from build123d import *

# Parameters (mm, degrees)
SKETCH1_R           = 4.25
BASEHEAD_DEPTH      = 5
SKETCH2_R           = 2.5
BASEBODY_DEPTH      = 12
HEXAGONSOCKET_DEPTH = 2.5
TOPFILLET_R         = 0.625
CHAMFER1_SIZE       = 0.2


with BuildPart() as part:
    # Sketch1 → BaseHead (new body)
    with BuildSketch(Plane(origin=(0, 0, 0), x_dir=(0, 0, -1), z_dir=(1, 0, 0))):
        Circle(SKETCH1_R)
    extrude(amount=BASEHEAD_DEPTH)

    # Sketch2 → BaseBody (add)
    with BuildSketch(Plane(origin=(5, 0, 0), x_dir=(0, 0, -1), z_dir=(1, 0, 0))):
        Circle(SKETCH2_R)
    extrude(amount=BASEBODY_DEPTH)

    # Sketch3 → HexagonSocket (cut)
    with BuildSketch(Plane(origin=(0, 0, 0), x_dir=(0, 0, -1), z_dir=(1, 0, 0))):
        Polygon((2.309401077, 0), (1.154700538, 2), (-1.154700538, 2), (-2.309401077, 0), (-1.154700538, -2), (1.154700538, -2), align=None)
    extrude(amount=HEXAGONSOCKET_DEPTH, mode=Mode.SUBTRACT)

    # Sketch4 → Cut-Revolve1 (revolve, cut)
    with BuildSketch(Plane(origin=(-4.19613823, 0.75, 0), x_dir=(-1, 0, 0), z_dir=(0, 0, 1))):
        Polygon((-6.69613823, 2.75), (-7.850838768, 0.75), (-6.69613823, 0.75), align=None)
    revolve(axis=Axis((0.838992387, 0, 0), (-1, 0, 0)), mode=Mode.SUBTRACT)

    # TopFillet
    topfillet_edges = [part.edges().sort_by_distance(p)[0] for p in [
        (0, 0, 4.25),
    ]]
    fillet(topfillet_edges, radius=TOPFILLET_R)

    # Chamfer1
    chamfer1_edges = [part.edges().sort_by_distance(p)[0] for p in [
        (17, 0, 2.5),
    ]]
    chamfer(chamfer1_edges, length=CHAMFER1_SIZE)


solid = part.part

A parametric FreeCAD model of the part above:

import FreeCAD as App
import Part
import Sketcher
from FreeCAD import Vector
Q = App.Units.Quantity


def edges_at(feature, points):
    """Names of the edges that pass closest to the given points."""
    edges = feature.Shape.Edges
    near = lambda p: min(range(len(edges)), key=lambda i: edges[i].distToShape(Part.Vertex(*p))[0])
    return sorted({f"Edge{near(p) + 1}" for p in points})


def add_polygon(sketch, points):
    """Adds a closed chain of lines whose ends are joined by coincident constraints."""
    first, n = sketch.GeometryCount, len(points)
    for a, b in zip(points, points[1:] + points[:1]):
        sketch.addGeometry(Part.LineSegment(App.Vector(*a, 0), App.Vector(*b, 0)), False)
    for i in range(n):
        sketch.addConstraint(Sketcher.Constraint("Coincident", first + i, 2, first + (i + 1) % n, 1))

doc = App.newDocument("Part")
body = doc.addObject("PartDesign::Body", "Body")

# Sketch on YZ plane
sketch1 = body.newObject("Sketcher::SketchObject", "Sketch")
sketch1.AttachmentSupport = (doc.getObject("YZ_Plane"), [""])
sketch1.MapMode = "FlatFace"
sketch1.addGeometry(Part.Circle(Vector(0, 0, 0), Vector(0, 0, 1), 4.25), False)
sketch1.addConstraint([
    Sketcher.Constraint("Coincident", 0, 3, -1, 1),
    Sketcher.Constraint("Diameter", 0, Q("8.5 mm")),
])
pad1 = body.newObject("PartDesign::Pad", "Pad")
pad1.Profile = sketch1
pad1.Length = 5

# Sketch on YZ plane
sketch2 = body.newObject("Sketcher::SketchObject", "Sketch001")
sketch2.AttachmentSupport = (doc.getObject("YZ_Plane"), [""])
sketch2.MapMode = "FlatFace"
sketch2.AttachmentOffset = App.Placement(Vector(0, 0, 5), App.Rotation())
sketch2.addGeometry(Part.Circle(Vector(0, 0, 0), Vector(0, 0, 1), 2.5), False)
sketch2.addConstraint([
    Sketcher.Constraint("Coincident", 0, 3, -1, 1),
    Sketcher.Constraint("Diameter", 0, Q("5 mm")),
])
pad2 = body.newObject("PartDesign::Pad", "Pad001")
pad2.Profile = sketch2
pad2.Length = 12

# Sketch on YZ plane
sketch3 = body.newObject("Sketcher::SketchObject", "Sketch002")
sketch3.AttachmentSupport = (doc.getObject("YZ_Plane"), [""])
sketch3.MapMode = "FlatFace"
add_polygon(sketch3, [(0, -2.309401), (2, -1.154701), (2, 1.154701), (0, 2.309401), (-2, 1.154701), (-2, -1.154701)])  # lines 0-5
sketch3.addConstraint([
    Sketcher.Constraint("Vertical", 1),
    Sketcher.Constraint("Vertical", 4),
    Sketcher.Constraint("Symmetric", 0, 2, 3, 2, -1, 1),
    Sketcher.Constraint("Symmetric", 2, 2, 5, 2, -1, 1),
    Sketcher.Constraint("PointOnObject", 2, 2, -2),
    Sketcher.Constraint("Parallel", 2, 5),
    Sketcher.Constraint("Horizontal", 1, 2, 3, 2),
    Sketcher.Constraint("Angle", 0, Q("30 deg")),
    Sketcher.Constraint("DistanceX", -1, 1, 0, 2, Q("2 mm")),
    Sketcher.Constraint("DistanceY", 1, 1, 1, 2, Q("2.309401 mm")),
])
pocket1 = body.newObject("PartDesign::Pocket", "Pocket")
pocket1.Profile = sketch3
pocket1.Length = 2.5
pocket1.Reversed = True

# Sketch on XY plane
sketch4 = body.newObject("Sketcher::SketchObject", "Sketch003")
sketch4.AttachmentSupport = (doc.getObject("XY_Plane"), [""])
sketch4.MapMode = "FlatFace"
add_polygon(sketch4, [(2.5, -2), (3.654701, 0), (2.5, 0)])  # lines 0-2
sketch4.addConstraint([
    Sketcher.Constraint("Horizontal", 1),
    Sketcher.Constraint("Vertical", 2),
    Sketcher.Constraint("PointOnObject", 0, 2, -1),
    Sketcher.Constraint("DistanceY", 2, 2, 2, 1, Q("2 mm")),
    Sketcher.Constraint("Angle", 0, Q("60 deg")),
    Sketcher.Constraint("DistanceX", -1, 1, 1, 2, Q("2.5 mm")),
])
groove = body.newObject("PartDesign::Groove", "Groove")
groove.Profile = sketch4
groove.ReferenceAxis = (sketch4, ["H_Axis"])
groove.Angle = 360
doc.recompute()

fillet = body.newObject("PartDesign::Fillet", "Fillet")
fillet.Base = (groove, edges_at(groove, [(0, 0, 4.25)]))
fillet.Radius = 0.625
doc.recompute()

chamfer = body.newObject("PartDesign::Chamfer", "Chamfer")
chamfer.Base = (fillet, edges_at(fillet, [(17, 0, 2.5)]))
chamfer.Size = 0.2

doc.recompute()
